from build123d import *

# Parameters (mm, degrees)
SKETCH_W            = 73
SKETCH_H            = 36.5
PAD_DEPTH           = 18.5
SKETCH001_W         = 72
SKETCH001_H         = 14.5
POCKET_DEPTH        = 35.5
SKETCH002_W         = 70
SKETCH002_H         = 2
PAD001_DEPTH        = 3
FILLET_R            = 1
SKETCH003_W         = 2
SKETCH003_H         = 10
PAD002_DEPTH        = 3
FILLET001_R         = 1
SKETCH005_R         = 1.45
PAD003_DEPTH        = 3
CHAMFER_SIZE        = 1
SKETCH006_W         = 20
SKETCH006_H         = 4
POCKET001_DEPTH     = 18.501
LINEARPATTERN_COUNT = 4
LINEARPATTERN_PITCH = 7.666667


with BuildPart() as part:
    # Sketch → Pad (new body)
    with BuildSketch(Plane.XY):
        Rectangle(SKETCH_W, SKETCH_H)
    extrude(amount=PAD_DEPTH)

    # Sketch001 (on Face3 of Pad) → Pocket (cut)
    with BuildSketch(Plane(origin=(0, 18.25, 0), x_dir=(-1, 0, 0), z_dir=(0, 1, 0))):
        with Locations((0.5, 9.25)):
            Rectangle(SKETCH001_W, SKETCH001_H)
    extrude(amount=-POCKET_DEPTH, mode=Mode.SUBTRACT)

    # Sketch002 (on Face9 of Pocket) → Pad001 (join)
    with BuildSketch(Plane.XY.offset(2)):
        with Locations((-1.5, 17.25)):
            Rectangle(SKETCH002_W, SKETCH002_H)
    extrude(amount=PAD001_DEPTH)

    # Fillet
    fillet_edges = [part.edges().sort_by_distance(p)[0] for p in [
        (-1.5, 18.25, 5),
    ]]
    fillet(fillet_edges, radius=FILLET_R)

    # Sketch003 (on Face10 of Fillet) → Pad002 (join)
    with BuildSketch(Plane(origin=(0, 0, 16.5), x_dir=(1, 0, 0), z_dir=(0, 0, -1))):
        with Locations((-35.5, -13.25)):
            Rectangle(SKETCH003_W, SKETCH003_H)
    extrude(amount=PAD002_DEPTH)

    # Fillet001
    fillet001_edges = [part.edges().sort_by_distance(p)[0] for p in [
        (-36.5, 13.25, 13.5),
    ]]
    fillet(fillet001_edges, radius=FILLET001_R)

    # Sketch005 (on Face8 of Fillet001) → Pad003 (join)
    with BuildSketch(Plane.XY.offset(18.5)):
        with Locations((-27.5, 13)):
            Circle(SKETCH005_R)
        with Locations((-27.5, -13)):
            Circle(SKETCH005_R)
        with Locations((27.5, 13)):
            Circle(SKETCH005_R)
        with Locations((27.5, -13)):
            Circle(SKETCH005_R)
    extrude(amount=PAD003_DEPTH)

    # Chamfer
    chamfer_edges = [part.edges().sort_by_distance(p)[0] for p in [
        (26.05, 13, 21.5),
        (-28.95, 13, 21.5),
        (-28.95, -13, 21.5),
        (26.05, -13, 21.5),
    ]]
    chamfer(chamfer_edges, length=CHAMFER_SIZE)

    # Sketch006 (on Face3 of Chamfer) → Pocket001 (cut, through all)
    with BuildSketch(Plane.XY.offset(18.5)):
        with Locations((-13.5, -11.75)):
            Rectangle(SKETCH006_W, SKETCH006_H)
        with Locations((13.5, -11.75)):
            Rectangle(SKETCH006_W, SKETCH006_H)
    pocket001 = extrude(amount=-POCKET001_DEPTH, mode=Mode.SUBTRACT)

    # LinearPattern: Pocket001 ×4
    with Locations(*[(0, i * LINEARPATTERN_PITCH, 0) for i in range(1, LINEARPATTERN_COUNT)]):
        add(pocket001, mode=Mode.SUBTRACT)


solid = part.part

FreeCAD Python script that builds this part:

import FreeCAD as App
import Part
import Sketcher

V = App.Vector
Q = App.Units.Quantity


def edges_at(feature, points):
    """Names of the edges that pass closest to the given points."""
    edges = feature.Shape.Edges
    near = lambda p: min(range(len(edges)), key=lambda i: edges[i].distToShape(Part.Vertex(*p))[0])
    return sorted({f"Edge{near(p) + 1}" for p in points})

doc = App.newDocument("Part")
params = doc.addObject("Spreadsheet::Sheet", "Params")
for row, (alias, value) in enumerate([
    ("sketch1_width", "73 mm"),
    ("sketch1_height", "36.5 mm"),
    ("pad1_length", "18.5 mm"),
    ("sketch2_width", "72 mm"),
    ("sketch2_height", "14.5 mm"),
    ("pocket1_length", "35.5 mm"),
    ("sketch3_width", "70 mm"),
    ("sketch3_height", "2 mm"),
    ("pad2_length", "3 mm"),
    ("fillet_radius", "1 mm"),
    ("sketch4_width", "2 mm"),
    ("sketch4_height", "10 mm"),
    ("pad3_length", "3 mm"),
    ("fillet2_radius", "1 mm"),
    ("sketch5_diameter", "2.9 mm"),
    ("pad4_length", "3 mm"),
    ("chamfer_size", "1 mm"),
    ("sketch6_width", "20 mm"),
    ("sketch6_height", "4 mm"),
    ("linearpattern_pitch", "7.666667 mm"),
], start=1):
    params.set(f"A{row}", alias)
    params.set(f"B{row}", "=" + value)
    params.setAlias(f"B{row}", alias)

body = doc.addObject("PartDesign::Body", "Body")

# Sketch on XY plane
sketch1 = body.newObject("Sketcher::SketchObject", "Sketch")
sketch1.AttachmentSupport = (doc.getObject("XY_Plane"), [""])
sketch1.MapMode = "FlatFace"
sketch1.addGeometry([
    Part.LineSegment(V(-36, 18, 0), V(-36, -18, 0)),
    Part.LineSegment(V(-36, -18, 0), V(36, -18, 0)),
    Part.LineSegment(V(36, -18, 0), V(36, 18, 0)),
    Part.LineSegment(V(36, 18, 0), V(-36, 18, 0)),
], False)
sketch1.addConstraint([
    Sketcher.Constraint("Coincident", 0, 2, 1, 1),
    Sketcher.Constraint("Coincident", 1, 2, 2, 1),
    Sketcher.Constraint("Coincident", 2, 2, 3, 1),
    Sketcher.Constraint("Coincident", 3, 2, 0, 1),
    Sketcher.Constraint("Vertical", 0),
    Sketcher.Constraint("Horizontal", 1),
    Sketcher.Constraint("Vertical", 2),
    Sketcher.Constraint("Horizontal", 3),
    Sketcher.Constraint("Symmetric", 0, 2, 2, 2, -1, 1),
    Sketcher.Constraint("DistanceX", 1, 1, 1, 2, Q("73 mm")),
    Sketcher.Constraint("DistanceY", 0, 2, 0, 1, Q("36.5 mm")),
])
sketch1.setExpression("Constraints[9]", "Params.sketch1_width")
sketch1.setExpression("Constraints[10]", "Params.sketch1_height")
pad1 = body.newObject("PartDesign::Pad", "Pad")
pad1.Profile = sketch1
pad1.setExpression("Length", "Params.pad1_length")

# Sketch on XZ plane
sketch2 = body.newObject("Sketcher::SketchObject", "Sketch001")
sketch2.AttachmentSupport = (doc.getObject("XZ_Plane"), [""])
sketch2.MapMode = "FlatFace"
sketch2.AttachmentOffset = App.Placement(V(0, 0, -18.25), App.Rotation())
sketch2.addGeometry([
    Part.LineSegment(V(36, 16, 0), V(36, 2, 0)),
    Part.LineSegment(V(36, 2, 0), V(-36, 2, 0)),
    Part.LineSegment(V(-36, 2, 0), V(-36, 16, 0)),
    Part.LineSegment(V(-36, 16, 0), V(36, 16, 0)),
], False)
sketch2.addConstraint([
    Sketcher.Constraint("Coincident", 0, 2, 1, 1),
    Sketcher.Constraint("Coincident", 1, 2, 2, 1),
    Sketcher.Constraint("Coincident", 2, 2, 3, 1),
    Sketcher.Constraint("Coincident", 3, 2, 0, 1),
    Sketcher.Constraint("Vertical", 0),
    Sketcher.Constraint("Horizontal", 1),
    Sketcher.Constraint("Vertical", 2),
    Sketcher.Constraint("Horizontal", 3),
    Sketcher.Constraint("DistanceX", 1, 2, 1, 1, Q("72 mm")),
    Sketcher.Constraint("DistanceY", 0, 2, 0, 1, Q("14.5 mm")),
    Sketcher.Constraint("DistanceY", -1, 1, 0, 2, Q("2 mm")),
    Sketcher.Constraint("DistanceX", -1, 1, 0, 2, Q("35.5 mm")),
])
sketch2.setExpression("Constraints[8]", "Params.sketch2_width")
sketch2.setExpression("Constraints[9]", "Params.sketch2_height")
pocket1 = body.newObject("PartDesign::Pocket", "Pocket")
pocket1.Profile = sketch2
pocket1.setExpression("Length", "Params.pocket1_length")
pocket1.Reversed = True

# Sketch on XY plane
sketch3 = body.newObject("Sketcher::SketchObject", "Sketch002")
sketch3.AttachmentSupport = (doc.getObject("XY_Plane"), [""])
sketch3.MapMode = "FlatFace"
sketch3.AttachmentOffset = App.Placement(V(0, 0, 2), App.Rotation())
sketch3.addGeometry([
    Part.LineSegment(V(-36.5, 18.2, 0), V(-36.5, 16.2, 0)),
    Part.LineSegment(V(-36.5, 16.2, 0), V(33.5, 16.2, 0)),
    Part.LineSegment(V(33.5, 16.2, 0), V(33.5, 18.2, 0)),
    Part.LineSegment(V(33.5, 18.2, 0), V(-36.5, 18.2, 0)),
], False)
sketch3.addConstraint([
    Sketcher.Constraint("Coincident", 0, 2, 1, 1),
    Sketcher.Constraint("Coincident", 1, 2, 2, 1),
    Sketcher.Constraint("Coincident", 2, 2, 3, 1),
    Sketcher.Constraint("Coincident", 3, 2, 0, 1),
    Sketcher.Constraint("Vertical", 0),
    Sketcher.Constraint("Horizontal", 1),
    Sketcher.Constraint("Vertical", 2),
    Sketcher.Constraint("Horizontal", 3),
    Sketcher.Constraint("DistanceX", 1, 1, 1, 2, Q("70 mm")),
    Sketcher.Constraint("DistanceY", 0, 2, 0, 1, Q("2 mm")),
    Sketcher.Constraint("DistanceX", 0, 2, -1, 1, Q("36.5 mm")),
    Sketcher.Constraint("DistanceY", -1, 1, 0, 2, Q("16.25 mm")),
])
sketch3.setExpression("Constraints[8]", "Params.sketch3_width")
sketch3.setExpression("Constraints[9]", "Params.sketch3_height")
pad2 = body.newObject("PartDesign::Pad", "Pad001")
pad2.Profile = sketch3
pad2.setExpression("Length", "Params.pad2_length")
doc.recompute()

fillet = body.newObject("PartDesign::Fillet", "Fillet")
fillet.Base = (pad2, edges_at(pad2, [(-1.5, 18.25, 5)]))
fillet.setExpression("Radius", "Params.fillet_radius")

# Sketch on XY plane
sketch4 = body.newObject("Sketcher::SketchObject", "Sketch003")
sketch4.AttachmentSupport = (doc.getObject("XY_Plane"), [""])
sketch4.MapMode = "FlatFace"
sketch4.AttachmentOffset = App.Placement(V(0, 0, 16.5), App.Rotation())
sketch4.addGeometry([
    Part.LineSegment(V(-36.5, 8.2, 0), V(-36.5, 18.2, 0)),
    Part.LineSegment(V(-36.5, 18.2, 0), V(-34.5, 18.2, 0)),
    Part.LineSegment(V(-34.5, 18.2, 0), V(-34.5, 8.2, 0)),
    Part.LineSegment(V(-34.5, 8.2, 0), V(-36.5, 8.2, 0)),
], False)
sketch4.addConstraint([
    Sketcher.Constraint("Coincident", 0, 2, 1, 1),
    Sketcher.Constraint("Coincident", 1, 2, 2, 1),
    Sketcher.Constraint("Coincident", 2, 2, 3, 1),
    Sketcher.Constraint("Coincident", 3, 2, 0, 1),
    Sketcher.Constraint("Vertical", 0),
    Sketcher.Constraint("Horizontal", 1),
    Sketcher.Constraint("Vertical", 2),
    Sketcher.Constraint("Horizontal", 3),
    Sketcher.Constraint("DistanceX", 1, 1, 1, 2, Q("2 mm")),
    Sketcher.Constraint("DistanceY", 0, 1, 0, 2, Q("10 mm")),
    Sketcher.Constraint("DistanceX", 0, 2, -1, 1, Q("36.5 mm")),
    Sketcher.Constraint("DistanceY", -1, 1, 0, 2, Q("18.25 mm")),
])
sketch4.setExpression("Constraints[8]", "Params.sketch4_width")
sketch4.setExpression("Constraints[9]", "Params.sketch4_height")
pad3 = body.newObject("PartDesign::Pad", "Pad002")
pad3.Profile = sketch4
pad3.setExpression("Length", "Params.pad3_length")
pad3.Reversed = True
doc.recompute()

fillet2 = body.newObject("PartDesign::Fillet", "Fillet001")
fillet2.Base = (pad3, edges_at(pad3, [(-36.5, 13.25, 13.5)]))
fillet2.setExpression("Radius", "Params.fillet2_radius")

# Sketch on XY plane
sketch5 = body.newObject("Sketcher::SketchObject", "Sketch004")
sketch5.AttachmentSupport = (doc.getObject("XY_Plane"), [""])
sketch5.MapMode = "FlatFace"
sketch5.AttachmentOffset = App.Placement(V(0, 0, 18.5), App.Rotation())
sketch5.addGeometry([
    Part.Circle(V(-27.5, 13, 0), V(0, 0, 1), 1.4),
    Part.Circle(V(-27.5, -13, 0), V(0, 0, 1), 1.4),
    Part.Circle(V(27.5, 13, 0), V(0, 0, 1), 1.4),
    Part.Circle(V(27.5, -13, 0), V(0, 0, 1), 1.4),
], False)
sketch5.addConstraint([
    Sketcher.Constraint("Equal", 0, 1),
    Sketcher.Constraint("Equal", 1, 2),
    Sketcher.Constraint("Equal", 2, 3),
    Sketcher.Constraint("Symmetric", 1, 3, 2, 3, -1, 1),
    Sketcher.Constraint("Symmetric", 0, 3, 3, 3, -1, 1),
    Sketcher.Constraint("Symmetric", 0, 3, 2, 3, -2),
    Sketcher.Constraint("Diameter", 0, Q("2.9 mm")),
    Sketcher.Constraint("DistanceY", -1, 1, 0, 3, Q("13 mm")),
    Sketcher.Constraint("DistanceX", 0, 3, 2, 3, Q("55 mm")),
])
sketch5.setExpression("Constraints[6]", "Params.sketch5_diameter")
pad4 = body.newObject("PartDesign::Pad", "Pad003")
pad4.Profile = sketch5
pad4.setExpression("Length", "Params.pad4_length")
doc.recompute()

chamfer = body.newObject("PartDesign::Chamfer", "Chamfer")
chamfer.Base = (pad4, edges_at(pad4, [
    (26.05, 13, 21.5),
    (-28.95, 13, 21.5),
    (-28.95, -13, 21.5),
    (26.05, -13, 21.5),
]))
chamfer.setExpression("Size", "Params.chamfer_size")

# Sketch on XY plane
sketch6 = body.newObject("Sketcher::SketchObject", "Sketch005")
sketch6.AttachmentSupport = (doc.getObject("XY_Plane"), [""])
sketch6.MapMode = "FlatFace"
sketch6.AttachmentOffset = App.Placement(V(0, 0, 18.5), App.Rotation())
sketch6.addGeometry([
    Part.LineSegment(V(-23.5, -9.8, 0), V(-23.5, -13.8, 0)),  # 0
    Part.LineSegment(V(-23.5, -13.8, 0), V(-3.5, -13.8, 0)),  # 1
    Part.LineSegment(V(-3.5, -13.8, 0), V(-3.5, -9.8, 0)),  # 2
    Part.LineSegment(V(-3.5, -9.8, 0), V(-23.5, -9.8, 0)),  # 3
    Part.LineSegment(V(3.5, -9.8, 0), V(3.5, -13.8, 0)),  # 4
    Part.LineSegment(V(3.5, -13.8, 0), V(23.5, -13.8, 0)),  # 5
    Part.LineSegment(V(23.5, -13.8, 0), V(23.5, -9.8, 0)),  # 6
    Part.LineSegment(V(23.5, -9.8, 0), V(3.5, -9.8, 0)),  # 7
], False)
sketch6.addConstraint([
    Sketcher.Constraint("Coincident", 0, 2, 1, 1),
    Sketcher.Constraint("Coincident", 1, 2, 2, 1),
    Sketcher.Constraint("Coincident", 2, 2, 3, 1),
    Sketcher.Constraint("Coincident", 3, 2, 0, 1),
    Sketcher.Constraint("Coincident", 4, 2, 5, 1),
    Sketcher.Constraint("Coincident", 5, 2, 6, 1),
    Sketcher.Constraint("Coincident", 6, 2, 7, 1),
    Sketcher.Constraint("Coincident", 7, 2, 4, 1),
    Sketcher.Constraint("Vertical", 0),
    Sketcher.Constraint("Horizontal", 1),
    Sketcher.Constraint("Vertical", 2),
    Sketcher.Constraint("Horizontal", 3),
    Sketcher.Constraint("Vertical", 4),
    Sketcher.Constraint("Horizontal", 5),
    Sketcher.Constraint("Vertical", 6),
    Sketcher.Constraint("Horizontal", 7),
    Sketcher.Constraint("Symmetric", 1, 2, 4, 2, -2),
    Sketcher.Constraint("Symmetric", 3, 2, 6, 2, -2),
    Sketcher.Constraint("DistanceX", 1, 1, 1, 2, Q("20 mm")),
    Sketcher.Constraint("DistanceY", 0, 2, 0, 1, Q("4 mm")),
    Sketcher.Constraint("DistanceX", 1, 2, 4, 2, Q("7 mm")),
    Sketcher.Constraint("DistanceY", 0, 2, -1, 1, Q("13.75 mm")),
])
sketch6.setExpression("Constraints[18]", "Params.sketch6_width")
sketch6.setExpression("Constraints[19]", "Params.sketch6_height")
pocket2 = body.newObject("PartDesign::Pocket", "Pocket001")
pocket2.Profile = sketch6
pocket2.Type = "ThroughAll"
doc.recompute()

linearpattern = body.newObject("PartDesign::LinearPattern", "LinearPattern")
linearpattern.Originals = [pocket2]
linearpattern.Direction = (doc.getObject("Y_Axis"), [""])
linearpattern.Mode = "offset"
linearpattern.setExpression("Offset", "Params.linearpattern_pitch")
linearpattern.Occurrences = 4
body.Tip = linearpattern

doc.recompute()
